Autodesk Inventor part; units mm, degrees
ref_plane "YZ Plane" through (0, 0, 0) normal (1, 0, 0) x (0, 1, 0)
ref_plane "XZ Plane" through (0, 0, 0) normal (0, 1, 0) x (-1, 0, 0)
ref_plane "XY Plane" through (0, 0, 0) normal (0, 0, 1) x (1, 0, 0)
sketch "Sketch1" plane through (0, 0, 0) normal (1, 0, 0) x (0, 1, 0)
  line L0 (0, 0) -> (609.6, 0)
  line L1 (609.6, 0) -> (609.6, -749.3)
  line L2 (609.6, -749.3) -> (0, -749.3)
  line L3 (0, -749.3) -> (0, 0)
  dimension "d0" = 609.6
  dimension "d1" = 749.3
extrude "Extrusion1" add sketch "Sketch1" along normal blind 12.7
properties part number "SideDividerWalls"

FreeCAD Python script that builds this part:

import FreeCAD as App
import Part
import Sketcher

V = App.Vector
Q = App.Units.Quantity

doc = App.newDocument("Part")
params = doc.addObject("Spreadsheet::Sheet", "Params")
for row, (alias, value) in enumerate([
    ("sketch1_width", "24 in"),
    ("sketch1_height", "29.5 in"),
    ("pad1_length", "0.5 in"),
], start=1):
    params.set(f"A{row}", alias)
    params.set(f"B{row}", "=" + value)
    params.setAlias(f"B{row}", alias)

body = doc.addObject("PartDesign::Body", "Body")

# Sketch on YZ plane
sketch1 = body.newObject("Sketcher::SketchObject", "Sketch")
sketch1.AttachmentSupport = (doc.getObject("YZ_Plane"), [""])
sketch1.MapMode = "FlatFace"
sketch1.addGeometry(Part.LineSegment(V(610, 0, 0), V(0, 0, 0)), False)
sketch1.addGeometry(Part.LineSegment(V(0, 0, 0), V(0, -749, 0)), False)
sketch1.addGeometry(Part.LineSegment(V(0, -749, 0), V(610, -749, 0)), False)
sketch1.addGeometry(Part.LineSegment(V(610, -749, 0), V(610, 0, 0)), False)
sketch1.addConstraint(Sketcher.Constraint("Coincident", 0, 2, 1, 1))
sketch1.addConstraint(Sketcher.Constraint("Coincident", 1, 2, 2, 1))
sketch1.addConstraint(Sketcher.Constraint("Coincident", 2, 2, 3, 1))
sketch1.addConstraint(Sketcher.Constraint("Coincident", 3, 2, 0, 1))
sketch1.addConstraint(Sketcher.Constraint("Horizontal", 0))
sketch1.addConstraint(Sketcher.Constraint("Vertical", 1))
sketch1.addConstraint(Sketcher.Constraint("Horizontal", 2))
sketch1.addConstraint(Sketcher.Constraint("Vertical", 3))
sketch1.addConstraint(Sketcher.Constraint("Coincident", 0, 2, -1, 1))
sketch1.addConstraint(Sketcher.Constraint("DistanceX", 0, 2, 0, 1, Q("24 in")))
sketch1.addConstraint(Sketcher.Constraint("DistanceY", 1, 2, 1, 1, Q("29.5 in")))
sketch1.setExpression("Constraints[9]", "Params.sketch1_width")
sketch1.setExpression("Constraints[10]", "Params.sketch1_height")
pad1 = body.newObject("PartDesign::Pad", "Pad")
pad1.Profile = sketch1
pad1.setExpression("Length", "Params.pad1_length")

doc.recompute()
